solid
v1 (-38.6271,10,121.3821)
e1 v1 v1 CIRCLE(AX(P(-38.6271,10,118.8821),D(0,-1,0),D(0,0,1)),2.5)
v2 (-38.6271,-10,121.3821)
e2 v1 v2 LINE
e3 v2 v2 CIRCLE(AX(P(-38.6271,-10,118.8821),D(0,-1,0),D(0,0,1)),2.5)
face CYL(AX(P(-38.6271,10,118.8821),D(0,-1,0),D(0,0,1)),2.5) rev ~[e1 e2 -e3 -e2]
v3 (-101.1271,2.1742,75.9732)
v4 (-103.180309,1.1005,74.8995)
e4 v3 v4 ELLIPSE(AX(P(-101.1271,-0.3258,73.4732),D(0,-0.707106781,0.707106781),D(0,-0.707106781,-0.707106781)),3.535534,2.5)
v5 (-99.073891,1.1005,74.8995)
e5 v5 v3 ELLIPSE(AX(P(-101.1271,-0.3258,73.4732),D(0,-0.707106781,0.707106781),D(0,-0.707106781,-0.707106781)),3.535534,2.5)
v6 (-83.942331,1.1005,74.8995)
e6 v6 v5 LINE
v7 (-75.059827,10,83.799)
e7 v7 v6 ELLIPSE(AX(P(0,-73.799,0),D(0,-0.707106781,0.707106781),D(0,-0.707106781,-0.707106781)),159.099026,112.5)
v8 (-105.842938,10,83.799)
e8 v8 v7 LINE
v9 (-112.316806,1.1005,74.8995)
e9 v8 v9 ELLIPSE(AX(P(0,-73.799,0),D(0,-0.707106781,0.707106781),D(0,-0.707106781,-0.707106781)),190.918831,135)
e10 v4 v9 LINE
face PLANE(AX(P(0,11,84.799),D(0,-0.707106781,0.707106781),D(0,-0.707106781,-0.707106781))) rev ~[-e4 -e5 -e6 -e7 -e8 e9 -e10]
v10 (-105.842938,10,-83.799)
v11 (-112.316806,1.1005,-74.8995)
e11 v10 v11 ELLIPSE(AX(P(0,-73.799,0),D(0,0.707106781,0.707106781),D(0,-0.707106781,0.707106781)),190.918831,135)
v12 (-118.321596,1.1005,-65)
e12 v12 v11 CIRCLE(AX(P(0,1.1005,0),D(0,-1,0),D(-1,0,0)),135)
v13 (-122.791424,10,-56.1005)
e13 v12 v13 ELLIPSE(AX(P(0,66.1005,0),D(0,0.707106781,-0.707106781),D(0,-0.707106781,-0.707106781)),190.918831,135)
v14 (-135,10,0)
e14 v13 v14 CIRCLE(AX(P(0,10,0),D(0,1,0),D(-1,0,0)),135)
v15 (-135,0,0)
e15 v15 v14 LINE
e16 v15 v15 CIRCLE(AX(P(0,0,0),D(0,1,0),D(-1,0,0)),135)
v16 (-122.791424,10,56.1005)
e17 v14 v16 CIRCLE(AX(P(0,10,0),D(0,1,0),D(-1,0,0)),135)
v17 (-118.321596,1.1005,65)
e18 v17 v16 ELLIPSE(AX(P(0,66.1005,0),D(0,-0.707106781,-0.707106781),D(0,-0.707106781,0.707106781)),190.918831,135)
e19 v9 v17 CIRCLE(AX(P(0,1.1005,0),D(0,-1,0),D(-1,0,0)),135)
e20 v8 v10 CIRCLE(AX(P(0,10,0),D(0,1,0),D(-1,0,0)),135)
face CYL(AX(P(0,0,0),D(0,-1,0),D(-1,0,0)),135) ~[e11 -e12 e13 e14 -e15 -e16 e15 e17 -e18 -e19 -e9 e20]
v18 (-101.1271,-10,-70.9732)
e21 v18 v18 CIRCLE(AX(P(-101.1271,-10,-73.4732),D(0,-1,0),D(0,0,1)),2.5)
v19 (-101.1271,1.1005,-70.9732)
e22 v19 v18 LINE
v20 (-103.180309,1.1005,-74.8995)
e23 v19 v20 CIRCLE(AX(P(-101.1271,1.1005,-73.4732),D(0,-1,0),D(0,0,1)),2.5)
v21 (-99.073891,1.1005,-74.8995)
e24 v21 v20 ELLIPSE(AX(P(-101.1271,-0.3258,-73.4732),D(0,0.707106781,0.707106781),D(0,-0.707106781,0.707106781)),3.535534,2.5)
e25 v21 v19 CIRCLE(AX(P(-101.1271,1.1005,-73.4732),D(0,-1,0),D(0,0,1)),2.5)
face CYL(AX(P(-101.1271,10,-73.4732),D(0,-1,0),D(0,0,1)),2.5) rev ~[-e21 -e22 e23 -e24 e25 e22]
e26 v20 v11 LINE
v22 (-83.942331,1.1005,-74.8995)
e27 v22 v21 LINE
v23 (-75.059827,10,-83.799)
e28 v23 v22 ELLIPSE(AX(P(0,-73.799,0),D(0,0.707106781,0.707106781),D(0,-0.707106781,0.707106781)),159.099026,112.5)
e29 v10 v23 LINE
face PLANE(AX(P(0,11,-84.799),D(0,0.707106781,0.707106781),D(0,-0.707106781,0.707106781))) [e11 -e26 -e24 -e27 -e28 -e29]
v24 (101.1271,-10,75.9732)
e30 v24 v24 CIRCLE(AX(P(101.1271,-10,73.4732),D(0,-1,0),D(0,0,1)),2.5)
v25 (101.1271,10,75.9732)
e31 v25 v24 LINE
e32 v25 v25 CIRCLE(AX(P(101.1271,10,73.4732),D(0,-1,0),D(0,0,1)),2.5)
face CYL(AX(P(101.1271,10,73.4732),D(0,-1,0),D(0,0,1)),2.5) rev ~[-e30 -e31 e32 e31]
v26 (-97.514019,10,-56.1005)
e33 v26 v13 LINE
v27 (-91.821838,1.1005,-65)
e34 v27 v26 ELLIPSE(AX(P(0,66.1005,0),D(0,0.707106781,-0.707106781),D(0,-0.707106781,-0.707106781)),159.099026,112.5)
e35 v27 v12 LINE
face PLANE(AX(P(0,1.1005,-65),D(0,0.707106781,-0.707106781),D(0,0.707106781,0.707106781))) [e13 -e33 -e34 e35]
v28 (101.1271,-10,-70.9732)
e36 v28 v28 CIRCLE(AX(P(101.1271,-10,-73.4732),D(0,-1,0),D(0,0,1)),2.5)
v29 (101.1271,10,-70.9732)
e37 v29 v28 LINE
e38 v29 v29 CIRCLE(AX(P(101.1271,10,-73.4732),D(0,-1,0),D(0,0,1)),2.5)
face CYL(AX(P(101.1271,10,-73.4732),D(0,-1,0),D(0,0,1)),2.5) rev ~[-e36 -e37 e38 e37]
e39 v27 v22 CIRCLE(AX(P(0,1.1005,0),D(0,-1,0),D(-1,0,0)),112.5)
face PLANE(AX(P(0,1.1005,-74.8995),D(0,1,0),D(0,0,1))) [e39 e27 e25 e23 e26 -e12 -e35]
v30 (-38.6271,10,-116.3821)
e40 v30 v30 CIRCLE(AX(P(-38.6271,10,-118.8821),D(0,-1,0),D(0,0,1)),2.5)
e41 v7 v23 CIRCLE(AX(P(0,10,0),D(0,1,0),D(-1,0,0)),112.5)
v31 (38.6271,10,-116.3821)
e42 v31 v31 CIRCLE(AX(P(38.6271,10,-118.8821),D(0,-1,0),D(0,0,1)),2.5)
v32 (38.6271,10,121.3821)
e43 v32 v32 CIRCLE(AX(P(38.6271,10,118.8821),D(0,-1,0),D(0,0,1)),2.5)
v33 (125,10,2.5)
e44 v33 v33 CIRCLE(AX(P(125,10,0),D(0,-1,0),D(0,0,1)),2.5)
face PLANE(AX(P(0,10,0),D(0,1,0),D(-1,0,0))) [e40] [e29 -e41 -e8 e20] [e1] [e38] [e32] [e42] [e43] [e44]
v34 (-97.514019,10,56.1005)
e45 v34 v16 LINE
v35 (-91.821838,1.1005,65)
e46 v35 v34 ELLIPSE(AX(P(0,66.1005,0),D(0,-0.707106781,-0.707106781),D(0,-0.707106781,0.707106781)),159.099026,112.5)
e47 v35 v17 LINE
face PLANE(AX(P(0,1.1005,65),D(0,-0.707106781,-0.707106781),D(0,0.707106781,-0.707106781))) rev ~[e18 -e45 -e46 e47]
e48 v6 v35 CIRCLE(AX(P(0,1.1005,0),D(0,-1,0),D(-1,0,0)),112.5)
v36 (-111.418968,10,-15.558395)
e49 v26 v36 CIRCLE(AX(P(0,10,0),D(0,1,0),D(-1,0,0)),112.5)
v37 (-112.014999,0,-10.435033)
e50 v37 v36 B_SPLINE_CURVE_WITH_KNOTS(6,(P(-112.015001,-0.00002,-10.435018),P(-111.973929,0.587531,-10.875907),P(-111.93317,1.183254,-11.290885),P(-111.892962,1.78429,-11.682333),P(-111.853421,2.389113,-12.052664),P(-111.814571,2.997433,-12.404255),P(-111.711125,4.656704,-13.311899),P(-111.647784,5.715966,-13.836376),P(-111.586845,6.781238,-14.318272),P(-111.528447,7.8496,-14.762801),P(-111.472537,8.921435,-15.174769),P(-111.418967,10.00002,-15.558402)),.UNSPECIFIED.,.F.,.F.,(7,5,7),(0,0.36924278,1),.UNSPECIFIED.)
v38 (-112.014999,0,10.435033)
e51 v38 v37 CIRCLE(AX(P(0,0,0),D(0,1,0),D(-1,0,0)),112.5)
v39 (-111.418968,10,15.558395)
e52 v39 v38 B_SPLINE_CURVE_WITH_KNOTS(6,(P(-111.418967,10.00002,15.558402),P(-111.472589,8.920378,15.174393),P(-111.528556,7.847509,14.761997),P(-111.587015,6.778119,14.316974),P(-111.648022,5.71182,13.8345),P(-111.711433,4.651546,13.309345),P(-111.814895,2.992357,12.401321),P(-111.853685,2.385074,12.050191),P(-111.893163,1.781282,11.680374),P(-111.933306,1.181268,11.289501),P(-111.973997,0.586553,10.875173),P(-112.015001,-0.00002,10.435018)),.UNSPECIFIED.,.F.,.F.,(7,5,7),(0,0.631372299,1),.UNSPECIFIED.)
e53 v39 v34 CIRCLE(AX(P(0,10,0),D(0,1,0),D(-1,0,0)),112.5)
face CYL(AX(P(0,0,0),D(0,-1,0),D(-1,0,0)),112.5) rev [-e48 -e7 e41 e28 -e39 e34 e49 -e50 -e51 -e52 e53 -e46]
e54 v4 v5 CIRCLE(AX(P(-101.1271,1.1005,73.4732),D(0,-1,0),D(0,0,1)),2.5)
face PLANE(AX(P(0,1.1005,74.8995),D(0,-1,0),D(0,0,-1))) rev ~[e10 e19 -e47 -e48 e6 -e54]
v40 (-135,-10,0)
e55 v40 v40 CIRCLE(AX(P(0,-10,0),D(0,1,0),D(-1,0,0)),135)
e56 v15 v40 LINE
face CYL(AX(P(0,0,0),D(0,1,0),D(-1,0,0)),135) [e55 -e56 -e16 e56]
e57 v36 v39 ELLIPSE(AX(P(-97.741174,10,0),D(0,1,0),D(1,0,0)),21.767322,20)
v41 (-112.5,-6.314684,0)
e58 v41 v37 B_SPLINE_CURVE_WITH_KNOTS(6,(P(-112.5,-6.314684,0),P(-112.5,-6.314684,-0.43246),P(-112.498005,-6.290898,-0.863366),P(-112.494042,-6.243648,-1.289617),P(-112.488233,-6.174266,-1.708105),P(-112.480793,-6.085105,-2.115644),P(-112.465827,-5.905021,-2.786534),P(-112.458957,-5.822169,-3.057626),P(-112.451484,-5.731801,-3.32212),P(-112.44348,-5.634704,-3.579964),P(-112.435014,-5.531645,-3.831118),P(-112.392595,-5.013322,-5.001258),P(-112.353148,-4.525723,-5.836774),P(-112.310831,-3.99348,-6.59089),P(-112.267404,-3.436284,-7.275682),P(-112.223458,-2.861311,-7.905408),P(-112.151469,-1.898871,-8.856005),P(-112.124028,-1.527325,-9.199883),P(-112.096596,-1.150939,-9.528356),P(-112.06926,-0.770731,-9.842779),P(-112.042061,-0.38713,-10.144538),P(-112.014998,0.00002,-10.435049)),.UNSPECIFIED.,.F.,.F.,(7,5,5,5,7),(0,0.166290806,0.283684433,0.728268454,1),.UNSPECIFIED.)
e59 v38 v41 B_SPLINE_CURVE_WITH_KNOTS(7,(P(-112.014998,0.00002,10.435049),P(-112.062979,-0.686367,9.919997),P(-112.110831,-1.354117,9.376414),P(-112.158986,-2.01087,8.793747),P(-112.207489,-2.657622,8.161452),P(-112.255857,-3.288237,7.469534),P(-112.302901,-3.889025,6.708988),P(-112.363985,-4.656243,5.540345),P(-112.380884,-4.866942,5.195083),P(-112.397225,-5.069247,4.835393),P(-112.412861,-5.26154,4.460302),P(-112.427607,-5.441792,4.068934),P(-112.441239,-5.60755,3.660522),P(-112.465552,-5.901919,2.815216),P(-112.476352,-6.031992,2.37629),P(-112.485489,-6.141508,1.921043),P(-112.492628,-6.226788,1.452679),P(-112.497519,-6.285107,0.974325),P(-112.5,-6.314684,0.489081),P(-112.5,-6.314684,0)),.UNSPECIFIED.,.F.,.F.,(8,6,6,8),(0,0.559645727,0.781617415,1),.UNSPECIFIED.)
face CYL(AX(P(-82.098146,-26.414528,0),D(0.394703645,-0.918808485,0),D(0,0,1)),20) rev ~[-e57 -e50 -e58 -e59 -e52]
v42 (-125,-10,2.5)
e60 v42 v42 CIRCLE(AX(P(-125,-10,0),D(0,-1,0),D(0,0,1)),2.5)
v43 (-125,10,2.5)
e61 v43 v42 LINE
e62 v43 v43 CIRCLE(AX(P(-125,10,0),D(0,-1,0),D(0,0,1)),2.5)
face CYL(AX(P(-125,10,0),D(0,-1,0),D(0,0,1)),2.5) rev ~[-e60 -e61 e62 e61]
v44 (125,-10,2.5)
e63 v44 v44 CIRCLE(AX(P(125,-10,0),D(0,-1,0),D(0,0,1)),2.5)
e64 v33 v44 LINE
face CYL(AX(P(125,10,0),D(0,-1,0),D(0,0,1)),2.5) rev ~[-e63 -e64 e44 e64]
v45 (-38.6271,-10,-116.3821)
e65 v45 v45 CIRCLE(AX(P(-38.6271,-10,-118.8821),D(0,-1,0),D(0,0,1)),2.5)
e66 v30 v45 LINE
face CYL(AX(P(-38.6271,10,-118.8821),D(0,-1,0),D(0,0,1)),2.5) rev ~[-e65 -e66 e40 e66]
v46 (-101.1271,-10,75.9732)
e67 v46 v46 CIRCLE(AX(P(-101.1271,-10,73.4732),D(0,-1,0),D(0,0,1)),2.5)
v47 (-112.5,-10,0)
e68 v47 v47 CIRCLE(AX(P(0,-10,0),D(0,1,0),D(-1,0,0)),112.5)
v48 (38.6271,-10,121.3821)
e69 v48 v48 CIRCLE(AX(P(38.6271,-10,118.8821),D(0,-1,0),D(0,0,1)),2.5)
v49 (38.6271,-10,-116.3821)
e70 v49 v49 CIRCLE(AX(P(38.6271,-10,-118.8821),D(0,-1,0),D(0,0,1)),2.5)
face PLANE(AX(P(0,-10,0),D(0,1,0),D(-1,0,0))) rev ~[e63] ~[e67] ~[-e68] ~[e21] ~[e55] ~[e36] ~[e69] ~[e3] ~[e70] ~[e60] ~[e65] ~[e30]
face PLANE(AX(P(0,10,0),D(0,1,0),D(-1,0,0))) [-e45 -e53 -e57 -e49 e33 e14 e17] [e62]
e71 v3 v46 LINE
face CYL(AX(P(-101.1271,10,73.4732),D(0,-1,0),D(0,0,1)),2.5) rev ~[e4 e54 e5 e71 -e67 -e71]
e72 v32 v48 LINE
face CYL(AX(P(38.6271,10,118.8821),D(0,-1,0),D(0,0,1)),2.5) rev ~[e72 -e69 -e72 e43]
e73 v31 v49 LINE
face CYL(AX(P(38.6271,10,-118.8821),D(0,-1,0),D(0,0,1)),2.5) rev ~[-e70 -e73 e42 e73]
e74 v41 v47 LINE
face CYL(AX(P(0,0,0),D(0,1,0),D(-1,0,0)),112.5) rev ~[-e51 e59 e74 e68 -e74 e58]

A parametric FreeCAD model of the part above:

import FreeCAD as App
import Part
import Sketcher

V = App.Vector


def add_polygon(sketch, points):
    """Adds a closed chain of lines whose ends are joined by coincident constraints."""
    first, n = sketch.GeometryCount, len(points)
    for a, b in zip(points, points[1:] + points[:1]):
        sketch.addGeometry(Part.LineSegment(App.Vector(*a, 0), App.Vector(*b, 0)), False)
    for i in range(n):
        sketch.addConstraint(Sketcher.Constraint("Coincident", first + i, 2, first + (i + 1) % n, 1))

doc = App.newDocument("Part")
body = doc.addObject("PartDesign::Body", "Body")

sketch1 = doc.addObject("Sketcher::SketchObject", "Sketch")
body.addObject(sketch1)
sketch1.AttachmentSupport = (doc.XZ_Plane, [""])
sketch1.MapMode = "FlatFace"
sketch1.addGeometry(Part.Circle(V(0, 0, 0), V(0, 0, 1), 135), False)
sketch1.addGeometry(Part.Circle(V(0, 0, 0), V(0, 0, 1), 112.5), False)
sketch1.addConstraint(Sketcher.Constraint("Coincident", 0, 3, -1, 1))
sketch1.addConstraint(Sketcher.Constraint("Coincident", 1, 3, -1, 1))
sketch1.addConstraint(Sketcher.Constraint("Diameter", 0, 270.0))
sketch1.addConstraint(Sketcher.Constraint("Diameter", 1, 225.0))
pad1 = doc.addObject("PartDesign::Pad", "Pad")
body.addObject(pad1)
pad1.Profile = sketch1
pad1.Length = 20
pad1.Midplane = True

sketch2 = doc.addObject("Sketcher::SketchObject", "Sketch001")
body.addObject(sketch2)
sketch2.AttachmentSupport = (doc.XZ_Plane, [""])
sketch2.MapMode = "FlatFace"
sketch2.AttachmentOffset = App.Placement(V(0, 0, -10), App.Rotation())
sketch2.addGeometry(Part.Circle(V(125, 0, 0), V(0, 0, 1), 2.5), False)
sketch2.addGeometry(Part.Circle(V(101.1271, 73.4732, 0), V(0, 0, 1), 2.5), False)
sketch2.addGeometry(Part.Circle(V(38.6271, 118.8821, 0), V(0, 0, 1), 2.5), False)
sketch2.addGeometry(Part.Circle(V(-38.6271, 118.8821, 0), V(0, 0, 1), 2.5), False)
sketch2.addGeometry(Part.Circle(V(-101.1271, 73.4732, 0), V(0, 0, 1), 2.5), False)
sketch2.addGeometry(Part.Circle(V(-125, 0, 0), V(0, 0, 1), 2.5), False)
sketch2.addGeometry(Part.Circle(V(-101.1271, -73.4732, 0), V(0, 0, 1), 2.5), False)
sketch2.addGeometry(Part.Circle(V(-38.6271, -118.8821, 0), V(0, 0, 1), 2.5), False)
sketch2.addGeometry(Part.Circle(V(38.6271, -118.8821, 0), V(0, 0, 1), 2.5), False)
sketch2.addGeometry(Part.Circle(V(101.1271, -73.4732, 0), V(0, 0, 1), 2.5), False)
sketch2.addConstraint(Sketcher.Constraint("Equal", 0, 1))
sketch2.addConstraint(Sketcher.Constraint("Equal", 1, 2))
sketch2.addConstraint(Sketcher.Constraint("Equal", 2, 3))
sketch2.addConstraint(Sketcher.Constraint("Equal", 3, 4))
sketch2.addConstraint(Sketcher.Constraint("Equal", 4, 5))
sketch2.addConstraint(Sketcher.Constraint("Equal", 5, 6))
sketch2.addConstraint(Sketcher.Constraint("Equal", 6, 7))
sketch2.addConstraint(Sketcher.Constraint("Equal", 7, 8))
sketch2.addConstraint(Sketcher.Constraint("Equal", 8, 9))
sketch2.addConstraint(Sketcher.Constraint("Symmetric", 0, 3, 5, 3, -1, 1))
sketch2.addConstraint(Sketcher.Constraint("Symmetric", 1, 3, 6, 3, -1, 1))
sketch2.addConstraint(Sketcher.Constraint("Symmetric", 2, 3, 7, 3, -1, 1))
sketch2.addConstraint(Sketcher.Constraint("Symmetric", 3, 3, 8, 3, -1, 1))
sketch2.addConstraint(Sketcher.Constraint("Symmetric", 4, 3, 9, 3, -1, 1))
sketch2.addConstraint(Sketcher.Constraint("Symmetric", 2, 3, 3, 3, -2))
sketch2.addConstraint(Sketcher.Constraint("Symmetric", 1, 3, 4, 3, -2))
sketch2.addConstraint(Sketcher.Constraint("PointOnObject", 0, 3, -1))
sketch2.addConstraint(Sketcher.Constraint("Diameter", 0, 5.0))
sketch2.addConstraint(Sketcher.Constraint("DistanceX", -1, 1, 0, 3, 125.0))
sketch2.addConstraint(Sketcher.Constraint("DistanceX", 2, 3, 1, 3, 62.5))
sketch2.addConstraint(Sketcher.Constraint("DistanceX", -1, 1, 1, 3, 101.127))
sketch2.addConstraint(Sketcher.Constraint("DistanceY", -1, 1, 2, 3, 118.882))
sketch2.addConstraint(Sketcher.Constraint("DistanceY", 1, 3, 2, 3, 45.409))
doc.recompute()
hole = doc.addObject("PartDesign::Hole", "Hole")
body.addObject(hole)
hole.Profile = sketch2
hole.ThreadType = "None"
hole.Diameter = 5
hole.DepthType = "ThroughAll"
hole.Reversed = True

sketch3 = doc.addObject("Sketcher::SketchObject", "Sketch002")
body.addObject(sketch3)
sketch3.Placement = App.Placement(V(-109.8713, -38.3432, -12.7), App.Rotation(V(0, 0, 1), V(-0.918808485, -0.394703645, 0), V(0.394703645, -0.918808485, 0), "ZXY"))
sketch3.addGeometry(Part.Circle(V(12.7, -30.2265, 0), V(0, 0, 1), 20), False)
sketch3.addConstraint(Sketcher.Constraint("Diameter", 0, 40.0))
sketch3.addConstraint(Sketcher.Constraint("DistanceX", -1, 1, 0, 3, 12.7))
sketch3.addConstraint(Sketcher.Constraint("DistanceY", 0, 3, -1, 1, 30.2265))
pocket1 = doc.addObject("PartDesign::Pocket", "Pocket")
body.addObject(pocket1)
pocket1.Profile = sketch3
pocket1.Length = 251.3

sketch4 = doc.addObject("Sketcher::SketchObject", "Sketch003")
body.addObject(sketch4)
sketch4.AttachmentSupport = (doc.YZ_Plane, [""])
sketch4.MapMode = "FlatFace"
add_polygon(sketch4, [(1.1005, -74.8995), (11, -84.799), (11, -55.1005), (1.1005, -65)])
add_polygon(sketch4, [(11, 55.1005), (11, 84.799), (1.1005, 74.8995), (1.1005, 65)])
sketch4.addConstraint(Sketcher.Constraint("Vertical", 1))
sketch4.addConstraint(Sketcher.Constraint("Vertical", 3))
sketch4.addConstraint(Sketcher.Constraint("Vertical", 4))
sketch4.addConstraint(Sketcher.Constraint("Vertical", 6))
sketch4.addConstraint(Sketcher.Constraint("Symmetric", 0, 2, 4, 2, -1))
sketch4.addConstraint(Sketcher.Constraint("Symmetric", 3, 2, 5, 2, -1))
sketch4.addConstraint(Sketcher.Constraint("Perpendicular", 0, 2))
sketch4.addConstraint(Sketcher.Constraint("Parallel", 2, 5))
sketch4.addConstraint(Sketcher.Constraint("Perpendicular", 5, 7))
sketch4.addConstraint(Sketcher.Constraint("Equal", 1, 4))
sketch4.addConstraint(Sketcher.Constraint("Distance", 0, 14.0))
sketch4.addConstraint(Sketcher.Constraint("DistanceY", 2, 2, -1, 1, 65.0))
sketch4.addConstraint(Sketcher.Constraint("DistanceX", -1, 1, 0, 2, 11.0))
sketch4.addConstraint(Sketcher.Constraint("DistanceY", 1, 2, 5, 2, 130.0))
pocket2 = doc.addObject("PartDesign::Pocket", "Pocket001")
body.addObject(pocket2)
pocket2.Profile = sketch4
pocket2.Type = "ThroughAll"

doc.recompute()
